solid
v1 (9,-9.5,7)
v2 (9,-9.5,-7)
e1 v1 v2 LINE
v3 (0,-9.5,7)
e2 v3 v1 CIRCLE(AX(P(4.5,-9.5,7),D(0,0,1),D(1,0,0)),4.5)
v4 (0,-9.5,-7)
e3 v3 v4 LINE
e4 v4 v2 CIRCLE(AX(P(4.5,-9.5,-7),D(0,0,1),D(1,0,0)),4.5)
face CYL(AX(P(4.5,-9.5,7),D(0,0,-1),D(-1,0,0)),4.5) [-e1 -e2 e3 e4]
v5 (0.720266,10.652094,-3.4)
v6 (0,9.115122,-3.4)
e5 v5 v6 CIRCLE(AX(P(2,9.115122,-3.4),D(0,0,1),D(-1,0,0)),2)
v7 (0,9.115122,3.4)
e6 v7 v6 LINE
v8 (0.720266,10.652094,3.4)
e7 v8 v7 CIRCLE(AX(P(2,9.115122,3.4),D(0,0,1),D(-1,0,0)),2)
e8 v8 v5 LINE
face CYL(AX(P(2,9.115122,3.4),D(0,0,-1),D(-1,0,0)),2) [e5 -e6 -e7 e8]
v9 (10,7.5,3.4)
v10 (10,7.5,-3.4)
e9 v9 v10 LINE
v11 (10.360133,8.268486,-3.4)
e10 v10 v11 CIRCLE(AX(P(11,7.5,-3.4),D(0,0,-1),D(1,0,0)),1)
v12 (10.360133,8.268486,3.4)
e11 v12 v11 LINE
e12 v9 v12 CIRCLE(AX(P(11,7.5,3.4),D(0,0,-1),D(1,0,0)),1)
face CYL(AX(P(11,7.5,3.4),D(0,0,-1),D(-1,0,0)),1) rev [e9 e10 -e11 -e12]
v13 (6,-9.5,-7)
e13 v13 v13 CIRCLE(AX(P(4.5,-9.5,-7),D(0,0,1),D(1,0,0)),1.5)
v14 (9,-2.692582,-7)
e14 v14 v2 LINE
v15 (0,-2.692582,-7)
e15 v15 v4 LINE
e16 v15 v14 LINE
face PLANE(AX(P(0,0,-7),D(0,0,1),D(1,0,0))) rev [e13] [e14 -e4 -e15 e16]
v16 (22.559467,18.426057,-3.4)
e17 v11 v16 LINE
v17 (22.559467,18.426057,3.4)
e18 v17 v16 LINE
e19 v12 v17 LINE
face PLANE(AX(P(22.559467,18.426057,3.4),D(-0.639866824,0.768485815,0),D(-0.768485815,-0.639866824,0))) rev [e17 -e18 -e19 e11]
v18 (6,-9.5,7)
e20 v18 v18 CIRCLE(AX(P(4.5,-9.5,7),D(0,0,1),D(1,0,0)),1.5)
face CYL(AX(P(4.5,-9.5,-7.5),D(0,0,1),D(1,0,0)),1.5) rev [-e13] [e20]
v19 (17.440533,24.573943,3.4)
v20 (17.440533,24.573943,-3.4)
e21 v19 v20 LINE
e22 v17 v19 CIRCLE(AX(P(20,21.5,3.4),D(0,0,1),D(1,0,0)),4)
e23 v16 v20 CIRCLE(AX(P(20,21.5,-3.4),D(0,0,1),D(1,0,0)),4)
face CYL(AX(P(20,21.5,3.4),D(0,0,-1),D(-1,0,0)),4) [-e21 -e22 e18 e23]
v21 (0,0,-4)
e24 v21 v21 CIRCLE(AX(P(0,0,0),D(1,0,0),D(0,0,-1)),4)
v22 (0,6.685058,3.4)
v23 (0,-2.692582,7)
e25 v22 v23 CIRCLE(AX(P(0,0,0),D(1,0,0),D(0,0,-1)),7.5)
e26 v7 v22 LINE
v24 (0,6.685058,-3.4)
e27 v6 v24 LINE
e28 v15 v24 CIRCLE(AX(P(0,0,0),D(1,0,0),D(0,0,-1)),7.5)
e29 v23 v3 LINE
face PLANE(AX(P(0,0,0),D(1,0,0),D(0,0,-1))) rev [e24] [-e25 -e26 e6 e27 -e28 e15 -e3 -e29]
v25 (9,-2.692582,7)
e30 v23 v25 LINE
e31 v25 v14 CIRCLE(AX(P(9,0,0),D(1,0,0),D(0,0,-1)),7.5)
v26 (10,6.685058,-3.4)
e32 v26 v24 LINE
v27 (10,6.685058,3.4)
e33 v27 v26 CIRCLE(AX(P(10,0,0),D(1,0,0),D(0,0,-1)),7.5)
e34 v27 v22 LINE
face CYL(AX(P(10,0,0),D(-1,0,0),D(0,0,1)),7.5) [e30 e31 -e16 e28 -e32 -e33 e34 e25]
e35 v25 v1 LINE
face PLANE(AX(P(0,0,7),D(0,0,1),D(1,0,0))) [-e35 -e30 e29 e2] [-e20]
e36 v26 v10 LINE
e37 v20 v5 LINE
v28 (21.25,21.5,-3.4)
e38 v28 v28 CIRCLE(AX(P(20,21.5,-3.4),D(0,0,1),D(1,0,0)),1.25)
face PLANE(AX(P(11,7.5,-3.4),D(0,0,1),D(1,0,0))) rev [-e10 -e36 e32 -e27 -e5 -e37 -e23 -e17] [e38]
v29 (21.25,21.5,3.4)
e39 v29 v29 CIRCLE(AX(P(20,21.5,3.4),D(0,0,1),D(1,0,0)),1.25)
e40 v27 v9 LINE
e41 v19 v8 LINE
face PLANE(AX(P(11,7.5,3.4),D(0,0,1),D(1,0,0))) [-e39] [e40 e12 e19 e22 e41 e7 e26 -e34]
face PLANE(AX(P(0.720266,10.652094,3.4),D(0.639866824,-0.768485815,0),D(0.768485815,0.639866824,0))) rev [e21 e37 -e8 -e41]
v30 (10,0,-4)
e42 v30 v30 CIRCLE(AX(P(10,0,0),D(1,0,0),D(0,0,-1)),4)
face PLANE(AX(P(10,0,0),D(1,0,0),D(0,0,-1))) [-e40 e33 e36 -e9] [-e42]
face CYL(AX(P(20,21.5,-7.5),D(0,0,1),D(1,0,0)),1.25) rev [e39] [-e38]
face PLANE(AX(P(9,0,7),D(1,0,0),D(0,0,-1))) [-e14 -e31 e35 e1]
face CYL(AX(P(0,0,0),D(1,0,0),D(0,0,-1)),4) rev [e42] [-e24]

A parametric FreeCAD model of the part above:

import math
import FreeCAD as App
import Part
import Sketcher

V = App.Vector

doc = App.newDocument("Part")
params = doc.addObject("Spreadsheet::Sheet", "Params")
for row, (alias, value) in enumerate([
    ("sketch1_diameter", "15 mm"),
    ("pad1_length", "10 mm"),
    ("sketch2_radius", "1 mm"),
    ("sketch2_radius2", "4 mm"),
    ("sketch2_radius3", "2 mm"),
    ("sketch2_width", "10 mm"),
    ("sketch2_height", "7.5 mm"),
    ("pad2_length", "6.8 mm"),
    ("sketch3_radius", "4.5 mm"),
    ("sketch3_height", "9.5 mm"),
    ("pad3_length", "14 mm"),
    ("sketch4_diameter", "3 mm"),
    ("sketch5_diameter", "8 mm"),
    ("sketch6_diameter", "2.5 mm"),
], start=1):
    params.set(f"A{row}", alias)
    params.set(f"B{row}", "=" + value)
    params.setAlias(f"B{row}", alias)

body = doc.addObject("PartDesign::Body", "Body")

# Sketch on YZ plane
sketch1 = doc.addObject("Sketcher::SketchObject", "Sketch")
body.addObject(sketch1)
sketch1.AttachmentSupport = (doc.YZ_Plane, [""])
sketch1.MapMode = "FlatFace"
sketch1.addGeometry(Part.Circle(V(0, 0, 0), V(0, 0, 1), 7.5), False)
sketch1.addConstraint([
    Sketcher.Constraint("Coincident", 0, 3, -1, 1),
    Sketcher.Constraint("Diameter", 0, 15.0),
])
sketch1.setExpression("Constraints[1]", "Params.sketch1_diameter")
pad1 = doc.addObject("PartDesign::Pad", "Pad")
body.addObject(pad1)
pad1.Profile = sketch1
pad1.setExpression("Length", "Params.pad1_length")

# Sketch on XY plane
sketch2 = doc.addObject("Sketcher::SketchObject", "Sketch001")
body.addObject(sketch2)
sketch2.AttachmentSupport = (doc.XY_Plane, [""])
sketch2.MapMode = "FlatFace"
sketch2.addGeometry([
    Part.LineSegment(V(0, 9.115122, 0), V(0, 0, 0)),  # 0
    Part.LineSegment(V(0, 0, 0), V(10, 0, 0)),  # 1
    Part.LineSegment(V(10, 0, 0), V(10, 7.5, 0)),  # 2
    Part.ArcOfCircle(Part.Circle(V(11, 7.5, 0), V(0, 0, 1), 1), math.radians(129.78189), math.radians(180)),  # 3
    Part.LineSegment(V(10.360133, 8.268486, 0), V(22.559467, 18.426057, 0)),  # 4
    Part.ArcOfCircle(Part.Circle(V(20, 21.5, 0), V(0, 0, 1), 4), math.radians(-50.21811), math.radians(129.78189)),  # 5
    Part.LineSegment(V(17.440533, 24.573943, 0), V(0.720266, 10.652094, 0)),  # 6
    Part.ArcOfCircle(Part.Circle(V(2, 9.115122, 0), V(0, 0, 1), 2), math.radians(129.78189), math.radians(180)),  # 7
], False)
sketch2.addConstraint([
    Sketcher.Constraint("Coincident", 0, 2, 1, 1),
    Sketcher.Constraint("Coincident", 1, 2, 2, 1),
    Sketcher.Constraint("Tangent", 2, 2, 3, 2),
    Sketcher.Constraint("Tangent", 3, 1, 4, 1),
    Sketcher.Constraint("Tangent", 4, 2, 5, 1),
    Sketcher.Constraint("Tangent", 5, 2, 6, 1),
    Sketcher.Constraint("Tangent", 6, 2, 7, 1),
    Sketcher.Constraint("Tangent", 7, 2, 0, 1),
    Sketcher.Constraint("Vertical", 0),
    Sketcher.Constraint("Horizontal", 1),
    Sketcher.Constraint("Vertical", 2),
    Sketcher.Constraint("Coincident", 0, 2, -1, 1),
    Sketcher.Constraint("Parallel", 4, 6),
    Sketcher.Constraint("Radius", 3, 1.0),
    Sketcher.Constraint("Radius", 5, 4.0),
    Sketcher.Constraint("Radius", 7, 2.0),
    Sketcher.Constraint("DistanceX", 1, 1, 1, 2, 10.0),
    Sketcher.Constraint("DistanceY", 2, 1, 2, 2, 7.5),
    Sketcher.Constraint("DistanceX", -1, 1, 5, 3, 20.0),
    Sketcher.Constraint("DistanceY", 3, 3, 5, 3, 14.0),
])
sketch2.setExpression("Constraints[13]", "Params.sketch2_radius")
sketch2.setExpression("Constraints[14]", "Params.sketch2_radius2")
sketch2.setExpression("Constraints[15]", "Params.sketch2_radius3")
sketch2.setExpression("Constraints[16]", "Params.sketch2_width")
sketch2.setExpression("Constraints[17]", "Params.sketch2_height")
pad2 = doc.addObject("PartDesign::Pad", "Pad001")
body.addObject(pad2)
pad2.Profile = sketch2
pad2.setExpression("Length", "Params.pad2_length")
pad2.Midplane = True

# Sketch on XY plane
sketch3 = doc.addObject("Sketcher::SketchObject", "Sketch002")
body.addObject(sketch3)
sketch3.AttachmentSupport = (doc.XY_Plane, [""])
sketch3.MapMode = "FlatFace"
sketch3.addGeometry([
    Part.LineSegment(V(9, -9.5, 0), V(9, 0, 0)),
    Part.LineSegment(V(9, 0, 0), V(0, 0, 0)),
    Part.LineSegment(V(0, 0, 0), V(0, -9.5, 0)),
    Part.ArcOfCircle(Part.Circle(V(4.5, -9.5, 0), V(0, 0, 1), 4.5), math.radians(180), math.radians(360)),
], False)
sketch3.addConstraint([
    Sketcher.Constraint("Coincident", 0, 2, 1, 1),
    Sketcher.Constraint("Coincident", 1, 2, 2, 1),
    Sketcher.Constraint("Tangent", 2, 2, 3, 1),
    Sketcher.Constraint("Tangent", 3, 2, 0, 1),
    Sketcher.Constraint("Vertical", 0),
    Sketcher.Constraint("Horizontal", 1),
    Sketcher.Constraint("Vertical", 2),
    Sketcher.Constraint("Coincident", 1, 2, -1, 1),
    Sketcher.Constraint("Radius", 3, 4.5),
    Sketcher.Constraint("DistanceY", 0, 1, 0, 2, 9.5),
])
sketch3.setExpression("Constraints[8]", "Params.sketch3_radius")
sketch3.setExpression("Constraints[9]", "Params.sketch3_height")
pad3 = doc.addObject("PartDesign::Pad", "Pad002")
body.addObject(pad3)
pad3.Profile = sketch3
pad3.setExpression("Length", "Params.pad3_length")
pad3.Midplane = True

# Sketch on XY plane
sketch4 = doc.addObject("Sketcher::SketchObject", "Sketch003")
body.addObject(sketch4)
sketch4.AttachmentSupport = (doc.XY_Plane, [""])
sketch4.MapMode = "FlatFace"
sketch4.AttachmentOffset = App.Placement(V(0, 0, 7), App.Rotation())
sketch4.addGeometry(Part.Circle(V(4.5, -9.5, 0), V(0, 0, 1), 1.5), False)
sketch4.addConstraint([
    Sketcher.Constraint("Diameter", 0, 3.0),
    Sketcher.Constraint("DistanceX", -1, 1, 0, 3, 4.5),
    Sketcher.Constraint("DistanceY", 0, 3, -1, 1, 9.5),
])
sketch4.setExpression("Constraints[0]", "Params.sketch4_diameter")
pocket1 = doc.addObject("PartDesign::Pocket", "Pocket")
body.addObject(pocket1)
pocket1.Profile = sketch4
pocket1.Type = "ThroughAll"
pocket1.Midplane = True

# Sketch on YZ plane
sketch5 = doc.addObject("Sketcher::SketchObject", "Sketch004")
body.addObject(sketch5)
sketch5.AttachmentSupport = (doc.YZ_Plane, [""])
sketch5.MapMode = "FlatFace"
sketch5.AttachmentOffset = App.Placement(V(0, 0, 10), App.Rotation())
sketch5.addGeometry(Part.Circle(V(0, 0, 0), V(0, 0, 1), 4), False)
sketch5.addConstraint([
    Sketcher.Constraint("Coincident", 0, 3, -1, 1),
    Sketcher.Constraint("Diameter", 0, 8.0),
])
sketch5.setExpression("Constraints[1]", "Params.sketch5_diameter")
pocket2 = doc.addObject("PartDesign::Pocket", "Pocket001")
body.addObject(pocket2)
pocket2.Profile = sketch5
pocket2.Type = "ThroughAll"

# Sketch on XY plane
sketch6 = doc.addObject("Sketcher::SketchObject", "Sketch005")
body.addObject(sketch6)
sketch6.AttachmentSupport = (doc.XY_Plane, [""])
sketch6.MapMode = "FlatFace"
sketch6.AttachmentOffset = App.Placement(V(0, 0, 3.4), App.Rotation())
sketch6.addGeometry(Part.Circle(V(20, 21.5, 0), V(0, 0, 1), 1.25), False)
sketch6.addConstraint([
    Sketcher.Constraint("Diameter", 0, 2.5),
    Sketcher.Constraint("DistanceX", -1, 1, 0, 3, 20.0),
    Sketcher.Constraint("DistanceY", -1, 1, 0, 3, 21.5),
])
sketch6.setExpression("Constraints[0]", "Params.sketch6_diameter")
pocket3 = doc.addObject("PartDesign::Pocket", "Pocket002")
body.addObject(pocket3)
pocket3.Profile = sketch6
pocket3.Type = "ThroughAll"
pocket3.Midplane = True

doc.recompute()
